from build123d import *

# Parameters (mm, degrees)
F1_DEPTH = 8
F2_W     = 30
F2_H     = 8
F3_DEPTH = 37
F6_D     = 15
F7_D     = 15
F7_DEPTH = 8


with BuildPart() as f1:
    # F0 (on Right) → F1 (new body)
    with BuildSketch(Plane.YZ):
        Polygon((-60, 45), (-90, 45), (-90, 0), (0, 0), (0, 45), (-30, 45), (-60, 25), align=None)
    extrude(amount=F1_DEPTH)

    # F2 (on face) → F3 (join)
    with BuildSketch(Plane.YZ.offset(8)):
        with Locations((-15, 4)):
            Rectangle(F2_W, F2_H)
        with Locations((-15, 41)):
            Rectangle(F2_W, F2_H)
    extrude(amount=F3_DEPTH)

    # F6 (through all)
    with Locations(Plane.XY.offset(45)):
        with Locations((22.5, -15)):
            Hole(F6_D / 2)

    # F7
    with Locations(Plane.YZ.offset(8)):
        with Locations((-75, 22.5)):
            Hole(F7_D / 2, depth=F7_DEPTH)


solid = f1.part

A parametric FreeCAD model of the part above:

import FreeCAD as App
import Part
import Sketcher
from FreeCAD import Vector
Q = App.Units.Quantity

doc = App.newDocument("Part")
body = doc.addObject("PartDesign::Body", "Body")

sketch1 = doc.addObject("Sketcher::SketchObject", "Sketch")
body.addObject(sketch1)
sketch1.AttachmentSupport = (doc.YZ_Plane, [""])
sketch1.MapMode = "FlatFace"
sketch1.addGeometry([
    Part.LineSegment(Vector(-60, 45, 0), Vector(-90, 45, 0)),
    Part.LineSegment(Vector(-90, 45, 0), Vector(-90, 0, 0)),
    Part.LineSegment(Vector(-90, 0, 0), Vector(0, 0, 0)),
    Part.LineSegment(Vector(0, 0, 0), Vector(0, 45, 0)),
    Part.LineSegment(Vector(0, 45, 0), Vector(-30, 45, 0)),
    Part.LineSegment(Vector(-30, 45, 0), Vector(-60, 25, 0)),
    Part.LineSegment(Vector(-60, 25, 0), Vector(-60, 45, 0)),
], False)
sketch1.addConstraint([
    Sketcher.Constraint("Coincident", 0, 2, 1, 1),
    Sketcher.Constraint("Coincident", 1, 2, 2, 1),
    Sketcher.Constraint("Coincident", 2, 2, 3, 1),
    Sketcher.Constraint("Coincident", 3, 2, 4, 1),
    Sketcher.Constraint("Coincident", 4, 2, 5, 1),
    Sketcher.Constraint("Coincident", 5, 2, 6, 1),
    Sketcher.Constraint("Coincident", 6, 2, 0, 1),
    Sketcher.Constraint("Horizontal", 0),
    Sketcher.Constraint("Vertical", 1),
    Sketcher.Constraint("Horizontal", 2),
    Sketcher.Constraint("Vertical", 3),
    Sketcher.Constraint("Horizontal", 4),
    Sketcher.Constraint("Vertical", 6),
    Sketcher.Constraint("Coincident", 2, 2, -1, 1),
    Sketcher.Constraint("Horizontal", 0, 2, 3, 2),
    Sketcher.Constraint("Equal", 0, 4),
    Sketcher.Constraint("DistanceX", 0, 2, 0, 1, Q("30 mm")),
    Sketcher.Constraint("DistanceX", 2, 1, 2, 2, Q("90 mm")),
    Sketcher.Constraint("DistanceY", 1, 2, 1, 1, Q("45 mm")),
    Sketcher.Constraint("DistanceY", 6, 1, 6, 2, Q("20 mm")),
])
pad1 = doc.addObject("PartDesign::Pad", "Pad")
body.addObject(pad1)
pad1.Profile = sketch1
pad1.Length = 8

sketch2 = doc.addObject("Sketcher::SketchObject", "Sketch001")
body.addObject(sketch2)
sketch2.AttachmentSupport = (doc.YZ_Plane, [""])
sketch2.MapMode = "FlatFace"
sketch2.AttachmentOffset = App.Placement(Vector(0, 0, 8), App.Rotation())
sketch2.addGeometry([
    Part.LineSegment(Vector(-30, 8, 0), Vector(-30, 0, 0)),
    Part.LineSegment(Vector(-30, 0, 0), Vector(0, 0, 0)),
    Part.LineSegment(Vector(0, 0, 0), Vector(0, 8, 0)),
    Part.LineSegment(Vector(0, 8, 0), Vector(-30, 8, 0)),
    Part.LineSegment(Vector(-30, 45, 0), Vector(-30, 37, 0)),
    Part.LineSegment(Vector(-30, 37, 0), Vector(0, 37, 0)),
    Part.LineSegment(Vector(0, 37, 0), Vector(0, 45, 0)),
    Part.LineSegment(Vector(0, 45, 0), Vector(-30, 45, 0)),
], False)
sketch2.addConstraint([
    Sketcher.Constraint("Coincident", 0, 2, 1, 1),
    Sketcher.Constraint("Coincident", 1, 2, 2, 1),
    Sketcher.Constraint("Coincident", 2, 2, 3, 1),
    Sketcher.Constraint("Coincident", 3, 2, 0, 1),
    Sketcher.Constraint("Coincident", 4, 2, 5, 1),
    Sketcher.Constraint("Coincident", 5, 2, 6, 1),
    Sketcher.Constraint("Coincident", 6, 2, 7, 1),
    Sketcher.Constraint("Coincident", 7, 2, 4, 1),
    Sketcher.Constraint("Vertical", 0),
    Sketcher.Constraint("Horizontal", 1),
    Sketcher.Constraint("Vertical", 2),
    Sketcher.Constraint("Horizontal", 3),
    Sketcher.Constraint("Vertical", 4),
    Sketcher.Constraint("Horizontal", 5),
    Sketcher.Constraint("Vertical", 6),
    Sketcher.Constraint("Horizontal", 7),
    Sketcher.Constraint("Coincident", 1, 2, -1, 1),
    Sketcher.Constraint("PointOnObject", 5, 2, -2),
    Sketcher.Constraint("Vertical", 3, 2, 4, 2),
    Sketcher.Constraint("Equal", 2, 4),
    Sketcher.Constraint("DistanceX", 1, 1, 1, 2, Q("30 mm")),
    Sketcher.Constraint("DistanceY", 0, 2, 0, 1, Q("8 mm")),
    Sketcher.Constraint("DistanceY", -1, 1, 4, 2, Q("37 mm")),
])
pad2 = doc.addObject("PartDesign::Pad", "Pad001")
body.addObject(pad2)
pad2.Profile = sketch2
pad2.Length = 37

sketch3 = doc.addObject("Sketcher::SketchObject", "Sketch002")
body.addObject(sketch3)
sketch3.AttachmentSupport = (doc.XY_Plane, [""])
sketch3.MapMode = "FlatFace"
sketch3.AttachmentOffset = App.Placement(Vector(0, 0, 45), App.Rotation())
sketch3.addGeometry(Part.Circle(Vector(22, -15, 0), Vector(0, 0, 1), 8), False)
sketch3.addConstraint([
    Sketcher.Constraint("Diameter", 0, Q("15 mm")),
    Sketcher.Constraint("DistanceY", 0, 3, -1, 1, Q("15 mm")),
    Sketcher.Constraint("DistanceX", -1, 1, 0, 3, Q("22.5 mm")),
])
doc.recompute()
hole = doc.addObject("PartDesign::Hole", "Hole")
body.addObject(hole)
hole.Profile = sketch3
hole.ThreadType = "None"
hole.Diameter = 15
hole.DepthType = "ThroughAll"

sketch4 = doc.addObject("Sketcher::SketchObject", "Sketch003")
body.addObject(sketch4)
sketch4.AttachmentSupport = (doc.YZ_Plane, [""])
sketch4.MapMode = "FlatFace"
sketch4.AttachmentOffset = App.Placement(Vector(0, 0, 8), App.Rotation())
sketch4.addGeometry(Part.Circle(Vector(-75, 22, 0), Vector(0, 0, 1), 8), False)
sketch4.addConstraint([
    Sketcher.Constraint("Diameter", 0, Q("15 mm")),
    Sketcher.Constraint("DistanceX", 0, 3, -1, 1, Q("75 mm")),
    Sketcher.Constraint("DistanceY", -1, 1, 0, 3, Q("22.5 mm")),
])
doc.recompute()
hole2 = doc.addObject("PartDesign::Hole", "Hole001")
body.addObject(hole2)
hole2.Profile = sketch4
hole2.ThreadType = "None"
hole2.Diameter = 15
hole2.DepthType = "Dimension"
hole2.Depth = 8
hole2.DrillPoint = "Flat"

doc.recompute()
